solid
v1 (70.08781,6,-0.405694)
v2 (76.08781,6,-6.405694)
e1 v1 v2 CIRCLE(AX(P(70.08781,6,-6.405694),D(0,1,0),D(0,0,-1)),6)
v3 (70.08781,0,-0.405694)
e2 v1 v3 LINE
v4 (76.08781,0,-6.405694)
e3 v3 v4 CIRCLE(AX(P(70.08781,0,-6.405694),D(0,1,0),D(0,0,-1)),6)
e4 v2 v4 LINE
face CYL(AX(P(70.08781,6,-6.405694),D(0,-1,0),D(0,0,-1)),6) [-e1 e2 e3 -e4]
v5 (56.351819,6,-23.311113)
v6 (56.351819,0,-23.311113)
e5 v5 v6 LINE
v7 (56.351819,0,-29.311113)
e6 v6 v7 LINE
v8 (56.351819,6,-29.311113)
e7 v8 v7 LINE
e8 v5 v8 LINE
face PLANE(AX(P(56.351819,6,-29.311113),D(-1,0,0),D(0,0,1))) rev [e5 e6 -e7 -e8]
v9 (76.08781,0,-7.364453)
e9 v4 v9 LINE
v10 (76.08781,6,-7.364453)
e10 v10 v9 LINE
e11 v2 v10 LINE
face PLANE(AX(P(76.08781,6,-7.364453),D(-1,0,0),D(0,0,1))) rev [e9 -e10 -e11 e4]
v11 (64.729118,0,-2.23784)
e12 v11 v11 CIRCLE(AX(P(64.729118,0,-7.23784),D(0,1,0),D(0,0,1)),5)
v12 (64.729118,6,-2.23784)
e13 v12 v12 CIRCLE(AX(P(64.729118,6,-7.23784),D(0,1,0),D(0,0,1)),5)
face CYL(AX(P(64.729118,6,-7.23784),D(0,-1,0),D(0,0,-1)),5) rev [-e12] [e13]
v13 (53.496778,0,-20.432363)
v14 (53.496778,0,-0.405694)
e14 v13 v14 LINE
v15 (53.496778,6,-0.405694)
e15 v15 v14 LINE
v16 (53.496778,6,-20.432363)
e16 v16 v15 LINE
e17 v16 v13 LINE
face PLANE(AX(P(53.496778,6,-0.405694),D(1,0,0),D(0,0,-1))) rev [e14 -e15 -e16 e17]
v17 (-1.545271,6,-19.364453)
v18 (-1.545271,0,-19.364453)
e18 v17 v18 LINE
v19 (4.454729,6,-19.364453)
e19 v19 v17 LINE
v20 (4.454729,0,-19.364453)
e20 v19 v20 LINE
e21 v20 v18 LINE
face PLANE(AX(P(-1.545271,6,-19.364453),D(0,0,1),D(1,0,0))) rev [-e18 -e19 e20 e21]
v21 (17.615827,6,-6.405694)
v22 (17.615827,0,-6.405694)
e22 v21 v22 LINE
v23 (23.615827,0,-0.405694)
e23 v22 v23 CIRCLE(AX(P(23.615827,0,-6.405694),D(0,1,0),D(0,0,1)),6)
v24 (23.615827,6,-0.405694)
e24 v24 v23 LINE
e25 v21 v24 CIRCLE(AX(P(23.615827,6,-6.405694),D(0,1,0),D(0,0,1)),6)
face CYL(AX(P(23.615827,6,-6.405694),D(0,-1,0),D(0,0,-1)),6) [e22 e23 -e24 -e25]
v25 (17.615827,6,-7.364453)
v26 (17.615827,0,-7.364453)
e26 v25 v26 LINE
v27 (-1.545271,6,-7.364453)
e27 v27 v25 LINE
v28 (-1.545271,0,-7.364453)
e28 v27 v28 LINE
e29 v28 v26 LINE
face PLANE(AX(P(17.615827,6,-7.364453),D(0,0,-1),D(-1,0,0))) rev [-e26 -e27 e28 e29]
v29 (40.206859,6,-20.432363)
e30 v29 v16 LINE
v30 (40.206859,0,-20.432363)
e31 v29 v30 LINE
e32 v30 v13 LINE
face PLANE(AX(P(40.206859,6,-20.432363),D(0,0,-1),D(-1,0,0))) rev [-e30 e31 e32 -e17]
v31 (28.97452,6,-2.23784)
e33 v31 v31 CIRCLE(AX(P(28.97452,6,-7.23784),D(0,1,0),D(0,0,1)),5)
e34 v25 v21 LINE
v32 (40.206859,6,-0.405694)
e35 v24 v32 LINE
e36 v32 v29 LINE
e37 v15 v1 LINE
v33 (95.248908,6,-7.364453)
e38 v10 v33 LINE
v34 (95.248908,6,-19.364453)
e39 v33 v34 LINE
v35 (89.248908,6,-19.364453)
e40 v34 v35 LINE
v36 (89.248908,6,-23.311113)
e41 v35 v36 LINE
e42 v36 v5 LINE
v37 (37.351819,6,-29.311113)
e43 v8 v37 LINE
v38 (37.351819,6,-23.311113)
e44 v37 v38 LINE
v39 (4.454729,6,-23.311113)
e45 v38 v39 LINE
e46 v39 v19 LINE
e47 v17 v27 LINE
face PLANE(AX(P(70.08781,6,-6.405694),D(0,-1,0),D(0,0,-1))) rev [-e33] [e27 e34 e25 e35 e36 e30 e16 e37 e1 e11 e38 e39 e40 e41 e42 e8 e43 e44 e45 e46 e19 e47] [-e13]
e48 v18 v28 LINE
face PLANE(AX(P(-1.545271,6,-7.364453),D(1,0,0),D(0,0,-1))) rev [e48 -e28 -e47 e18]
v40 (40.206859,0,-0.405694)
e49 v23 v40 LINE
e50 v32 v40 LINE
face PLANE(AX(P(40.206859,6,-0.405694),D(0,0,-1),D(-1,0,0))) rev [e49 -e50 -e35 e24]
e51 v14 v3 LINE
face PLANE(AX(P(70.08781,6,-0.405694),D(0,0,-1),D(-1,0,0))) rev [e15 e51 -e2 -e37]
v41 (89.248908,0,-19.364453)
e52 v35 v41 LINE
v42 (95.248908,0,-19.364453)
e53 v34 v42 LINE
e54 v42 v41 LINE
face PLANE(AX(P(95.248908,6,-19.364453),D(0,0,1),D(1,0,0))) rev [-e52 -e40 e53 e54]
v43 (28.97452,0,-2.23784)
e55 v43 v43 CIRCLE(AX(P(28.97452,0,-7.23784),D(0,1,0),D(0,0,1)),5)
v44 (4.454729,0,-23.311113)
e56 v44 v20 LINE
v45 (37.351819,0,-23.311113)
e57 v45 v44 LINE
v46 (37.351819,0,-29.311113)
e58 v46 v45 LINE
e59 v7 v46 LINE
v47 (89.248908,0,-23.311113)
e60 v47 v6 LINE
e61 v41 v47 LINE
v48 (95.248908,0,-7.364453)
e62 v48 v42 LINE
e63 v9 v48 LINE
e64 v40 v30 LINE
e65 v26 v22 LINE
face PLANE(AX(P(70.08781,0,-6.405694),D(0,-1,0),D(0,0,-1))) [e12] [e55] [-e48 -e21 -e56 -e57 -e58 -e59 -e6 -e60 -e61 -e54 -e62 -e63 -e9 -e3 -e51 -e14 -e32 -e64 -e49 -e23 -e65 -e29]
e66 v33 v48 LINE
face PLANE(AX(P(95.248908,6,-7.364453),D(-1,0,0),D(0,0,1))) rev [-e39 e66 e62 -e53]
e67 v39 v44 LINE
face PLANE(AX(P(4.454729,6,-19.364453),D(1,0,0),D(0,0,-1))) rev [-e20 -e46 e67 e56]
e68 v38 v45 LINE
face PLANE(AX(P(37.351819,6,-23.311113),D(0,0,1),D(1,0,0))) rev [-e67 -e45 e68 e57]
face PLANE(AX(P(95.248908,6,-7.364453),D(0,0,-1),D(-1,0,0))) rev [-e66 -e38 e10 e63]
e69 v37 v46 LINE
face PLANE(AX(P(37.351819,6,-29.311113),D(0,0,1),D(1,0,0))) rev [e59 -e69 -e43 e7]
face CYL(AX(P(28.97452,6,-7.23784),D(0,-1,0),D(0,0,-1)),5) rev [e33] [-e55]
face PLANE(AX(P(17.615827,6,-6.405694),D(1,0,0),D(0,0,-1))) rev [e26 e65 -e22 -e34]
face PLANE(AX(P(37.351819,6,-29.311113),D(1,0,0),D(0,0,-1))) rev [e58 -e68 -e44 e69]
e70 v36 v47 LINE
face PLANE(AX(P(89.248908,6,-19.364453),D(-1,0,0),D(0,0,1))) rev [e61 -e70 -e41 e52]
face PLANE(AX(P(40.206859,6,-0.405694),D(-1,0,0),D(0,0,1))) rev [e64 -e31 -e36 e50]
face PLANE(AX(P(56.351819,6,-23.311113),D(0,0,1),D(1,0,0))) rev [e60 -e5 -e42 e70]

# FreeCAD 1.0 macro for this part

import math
import FreeCAD as App
import Part
import Sketcher

V = App.Vector
Q = App.Units.Quantity

doc = App.newDocument("Part")
body = doc.addObject("PartDesign::Body", "Body")

sketch1 = body.newObject("Sketcher::SketchObject", "Sketch")
sketch1.AttachmentSupport = (doc.getObject("XZ_Plane"), [""])
sketch1.MapMode = "FlatFace"
sketch1.addGeometry([
    Part.LineSegment(V(17.6, -7.4, 0), V(17.6, -6.4, 0)),
    Part.ArcOfCircle(Part.Circle(V(23.6, -6.4, 0), V(0, 0, 1), 6), math.radians(90), math.radians(180)),
    Part.LineSegment(V(23.6, -0.4, 0), V(40.2, -0.4, 0)),
    Part.LineSegment(V(40.2, -0.4, 0), V(40.2, -20.4, 0)),
    Part.LineSegment(V(40.2, -20.4, 0), V(53.5, -20.4, 0)),
    Part.LineSegment(V(53.5, -20.4, 0), V(53.5, -0.4, 0)),
    Part.LineSegment(V(53.5, -0.4, 0), V(70.1, -0.4, 0)),
    Part.ArcOfCircle(Part.Circle(V(70.1, -6.4, 0), V(0, 0, 1), 6), math.radians(0), math.radians(90)),
    Part.LineSegment(V(76.1, -6.4, 0), V(76.1, -7.4, 0)),
    Part.LineSegment(V(76.1, -7.4, 0), V(95.2, -7.4, 0)),
    Part.LineSegment(V(95.2, -7.4, 0), V(95.2, -19.4, 0)),
    Part.LineSegment(V(95.2, -19.4, 0), V(89.2, -19.4, 0)),
    Part.LineSegment(V(89.2, -19.4, 0), V(89.2, -23.3, 0)),
    Part.LineSegment(V(89.2, -23.3, 0), V(56.4, -23.3, 0)),
    Part.LineSegment(V(56.4, -23.3, 0), V(56.4, -29.3, 0)),
    Part.LineSegment(V(56.4, -29.3, 0), V(37.4, -29.3, 0)),
    Part.LineSegment(V(37.4, -29.3, 0), V(37.4, -23.3, 0)),
    Part.LineSegment(V(37.4, -23.3, 0), V(4.5, -23.3, 0)),
    Part.LineSegment(V(4.5, -23.3, 0), V(4.5, -19.4, 0)),
    Part.LineSegment(V(4.5, -19.4, 0), V(-1.5, -19.4, 0)),
    Part.LineSegment(V(-1.5, -19.4, 0), V(-1.5, -7.4, 0)),
    Part.LineSegment(V(-1.5, -7.4, 0), V(17.6, -7.4, 0)),
    Part.Circle(V(64.7, -7.2, 0), V(0, 0, 1), 5),
    Part.Circle(V(29, -7.2, 0), V(0, 0, 1), 5),
], False)
sketch1.addConstraint([
    Sketcher.Constraint("Tangent", 0, 2, 1, 2),
    Sketcher.Constraint("Tangent", 1, 1, 2, 1),
    Sketcher.Constraint("Coincident", 2, 2, 3, 1),
    Sketcher.Constraint("Coincident", 3, 2, 4, 1),
    Sketcher.Constraint("Coincident", 4, 2, 5, 1),
    Sketcher.Constraint("Coincident", 5, 2, 6, 1),
    Sketcher.Constraint("Tangent", 6, 2, 7, 2),
    Sketcher.Constraint("Tangent", 7, 1, 8, 1),
    Sketcher.Constraint("Coincident", 8, 2, 9, 1),
    Sketcher.Constraint("Coincident", 9, 2, 10, 1),
    Sketcher.Constraint("Coincident", 10, 2, 11, 1),
    Sketcher.Constraint("Coincident", 11, 2, 12, 1),
    Sketcher.Constraint("Coincident", 12, 2, 13, 1),
    Sketcher.Constraint("Coincident", 13, 2, 14, 1),
    Sketcher.Constraint("Coincident", 14, 2, 15, 1),
    Sketcher.Constraint("Coincident", 15, 2, 16, 1),
    Sketcher.Constraint("Coincident", 16, 2, 17, 1),
    Sketcher.Constraint("Coincident", 17, 2, 18, 1),
    Sketcher.Constraint("Coincident", 18, 2, 19, 1),
    Sketcher.Constraint("Coincident", 19, 2, 20, 1),
    Sketcher.Constraint("Coincident", 20, 2, 21, 1),
    Sketcher.Constraint("Coincident", 21, 2, 0, 1),
    Sketcher.Constraint("Vertical", 0),
    Sketcher.Constraint("Horizontal", 2),
    Sketcher.Constraint("Vertical", 3),
    Sketcher.Constraint("Horizontal", 4),
    Sketcher.Constraint("Vertical", 5),
    Sketcher.Constraint("Horizontal", 6),
    Sketcher.Constraint("Vertical", 8),
    Sketcher.Constraint("Horizontal", 9),
    Sketcher.Constraint("Vertical", 10),
    Sketcher.Constraint("Horizontal", 11),
    Sketcher.Constraint("Vertical", 12),
    Sketcher.Constraint("Horizontal", 13),
    Sketcher.Constraint("Vertical", 14),
    Sketcher.Constraint("Horizontal", 15),
    Sketcher.Constraint("Vertical", 16),
    Sketcher.Constraint("Horizontal", 17),
    Sketcher.Constraint("Vertical", 18),
    Sketcher.Constraint("Horizontal", 19),
    Sketcher.Constraint("Vertical", 20),
    Sketcher.Constraint("Horizontal", 21),
    Sketcher.Constraint("Equal", 1, 7),
    Sketcher.Constraint("Equal", 22, 23),
    Sketcher.Constraint("Horizontal", 1, 3, 7, 3),
    Sketcher.Constraint("Horizontal", 22, 3, 23, 3),
    Sketcher.Constraint("Horizontal", 13, 2, 16, 2),
    Sketcher.Constraint("Horizontal", 11, 2, 18, 2),
    Sketcher.Constraint("Horizontal", 9, 2, 20, 2),
    Sketcher.Constraint("Equal", 2, 6),
    Sketcher.Constraint("Equal", 13, 17),
    Sketcher.Constraint("Equal", 11, 19),
    Sketcher.Constraint("Equal", 9, 21),
    Sketcher.Constraint("Equal", 19, 14),
    Sketcher.Constraint("Diameter", 22, Q("10 mm")),
    Sketcher.Constraint("Radius", 1, Q("6 mm")),
    Sketcher.Constraint("DistanceX", 11, 2, 11, 1, Q("6 mm")),
    Sketcher.Constraint("DistanceX", 15, 2, 15, 1, Q("19 mm")),
    Sketcher.Constraint("DistanceY", 10, 2, 10, 1, Q("12 mm")),
    Sketcher.Constraint("DistanceX", 9, 1, 9, 2, Q("19.161098 mm")),
    Sketcher.Constraint("DistanceX", 2, 1, 2, 2, Q("16.591032 mm")),
    Sketcher.Constraint("DistanceX", 4, 1, 4, 2, Q("13.289919 mm")),
    Sketcher.Constraint("DistanceY", 0, 1, 0, 2, Q("0.958759 mm")),
    Sketcher.Constraint("DistanceY", 3, 2, 3, 1, Q("20.026669 mm")),
    Sketcher.Constraint("DistanceY", 12, 2, 12, 1, Q("3.94666 mm")),
    Sketcher.Constraint("DistanceX", 23, 3, 22, 3, Q("35.754598 mm")),
    Sketcher.Constraint("DistanceX", 13, 2, 22, 3, Q("8.377299 mm")),
    Sketcher.Constraint("DistanceX", -1, 1, 7, 3, Q("70.08781 mm")),
    Sketcher.Constraint("DistanceY", 22, 3, -1, 1, Q("7.23784 mm")),
    Sketcher.Constraint("DistanceY", 1, 3, -1, 1, Q("6.405694 mm")),
])
pad1 = body.newObject("PartDesign::Pad", "Pad")
pad1.Profile = sketch1
pad1.Length = 6
pad1.Reversed = True

doc.recompute()
